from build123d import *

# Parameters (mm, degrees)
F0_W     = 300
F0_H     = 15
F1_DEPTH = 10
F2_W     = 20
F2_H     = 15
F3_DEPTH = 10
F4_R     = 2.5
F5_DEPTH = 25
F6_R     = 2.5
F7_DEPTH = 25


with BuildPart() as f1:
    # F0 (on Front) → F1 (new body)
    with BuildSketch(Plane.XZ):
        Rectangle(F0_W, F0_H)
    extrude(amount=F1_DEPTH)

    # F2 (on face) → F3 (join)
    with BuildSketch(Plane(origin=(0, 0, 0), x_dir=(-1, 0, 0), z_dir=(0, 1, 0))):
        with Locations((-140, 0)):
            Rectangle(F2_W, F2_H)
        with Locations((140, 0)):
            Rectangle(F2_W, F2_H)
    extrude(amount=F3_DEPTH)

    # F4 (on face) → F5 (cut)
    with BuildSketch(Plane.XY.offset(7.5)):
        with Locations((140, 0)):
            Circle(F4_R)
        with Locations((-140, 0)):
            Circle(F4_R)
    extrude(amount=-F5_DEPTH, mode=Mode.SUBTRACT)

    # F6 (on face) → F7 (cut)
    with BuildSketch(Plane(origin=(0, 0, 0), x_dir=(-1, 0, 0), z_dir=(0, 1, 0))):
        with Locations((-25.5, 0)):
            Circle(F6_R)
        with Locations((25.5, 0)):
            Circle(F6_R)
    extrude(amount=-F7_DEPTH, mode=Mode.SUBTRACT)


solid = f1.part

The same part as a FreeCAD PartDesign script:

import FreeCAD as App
import Part
import Sketcher
from FreeCAD import Vector


def add_polygon(sketch, points):
    """Adds a closed chain of lines whose ends are joined by coincident constraints."""
    first, n = sketch.GeometryCount, len(points)
    for a, b in zip(points, points[1:] + points[:1]):
        sketch.addGeometry(Part.LineSegment(App.Vector(*a, 0), App.Vector(*b, 0)), False)
    for i in range(n):
        sketch.addConstraint(Sketcher.Constraint("Coincident", first + i, 2, first + (i + 1) % n, 1))

doc = App.newDocument("Part")
body = doc.addObject("PartDesign::Body", "Body")

# Sketch on XZ plane
sketch1 = body.newObject("Sketcher::SketchObject", "Sketch")
sketch1.AttachmentSupport = (doc.getObject("XZ_Plane"), [""])
sketch1.MapMode = "FlatFace"
add_polygon(sketch1, [(-150, 7.5), (-150, -7.5), (150, -7.5), (150, 7.5)])  # lines 0-3
sketch1.addConstraint([
    Sketcher.Constraint("Vertical", 0),
    Sketcher.Constraint("Horizontal", 1),
    Sketcher.Constraint("Vertical", 2),
    Sketcher.Constraint("Horizontal", 3),
    Sketcher.Constraint("Symmetric", 0, 2, 2, 2, -1, 1),
    Sketcher.Constraint("DistanceX", 1, 1, 1, 2, 300.0),
    Sketcher.Constraint("DistanceY", 0, 2, 0, 1, 15.0),
])
pad1 = body.newObject("PartDesign::Pad", "Pad")
pad1.Profile = sketch1
pad1.Length = 10

# Sketch on XZ plane
sketch2 = body.newObject("Sketcher::SketchObject", "Sketch001")
sketch2.AttachmentSupport = (doc.getObject("XZ_Plane"), [""])
sketch2.MapMode = "FlatFace"
add_polygon(sketch2, [(150, 7.5), (150, -7.5), (130, -7.5), (130, 7.5)])  # lines 0-3
add_polygon(sketch2, [(-130, 7.5), (-130, -7.5), (-150, -7.5), (-150, 7.5)])  # lines 4-7
sketch2.addConstraint([
    Sketcher.Constraint("Vertical", 0),
    Sketcher.Constraint("Horizontal", 1),
    Sketcher.Constraint("Vertical", 2),
    Sketcher.Constraint("Horizontal", 3),
    Sketcher.Constraint("Vertical", 4),
    Sketcher.Constraint("Horizontal", 5),
    Sketcher.Constraint("Vertical", 6),
    Sketcher.Constraint("Horizontal", 7),
    Sketcher.Constraint("Symmetric", 2, 2, 4, 2, -1, 1),
    Sketcher.Constraint("Symmetric", 0, 2, 6, 2, -1, 1),
    Sketcher.Constraint("Horizontal", 1, 2, 4, 2),
    Sketcher.Constraint("DistanceX", 1, 2, 1, 1, 20.0),
    Sketcher.Constraint("DistanceY", 0, 2, 0, 1, 15.0),
    Sketcher.Constraint("DistanceX", -1, 1, 0, 2, 150.0),
])
pad2 = body.newObject("PartDesign::Pad", "Pad001")
pad2.Profile = sketch2
pad2.Length = 10
pad2.Reversed = True

# Sketch on XY plane
sketch3 = body.newObject("Sketcher::SketchObject", "Sketch002")
sketch3.AttachmentSupport = (doc.getObject("XY_Plane"), [""])
sketch3.MapMode = "FlatFace"
sketch3.AttachmentOffset = App.Placement(Vector(0, 0, 7.5), App.Rotation())
sketch3.addGeometry([
    Part.Circle(Vector(140, 0, 0), Vector(0, 0, 1), 2.5),
    Part.Circle(Vector(-140, 0, 0), Vector(0, 0, 1), 2.5),
], False)
sketch3.addConstraint([
    Sketcher.Constraint("Equal", 0, 1),
    Sketcher.Constraint("Symmetric", 0, 3, 1, 3, -1, 1),
    Sketcher.Constraint("PointOnObject", 0, 3, -1),
    Sketcher.Constraint("Diameter", 0, 5.0),
    Sketcher.Constraint("DistanceX", -1, 1, 0, 3, 140.0),
])
pocket1 = body.newObject("PartDesign::Pocket", "Pocket")
pocket1.Profile = sketch3
pocket1.Length = 25

# Sketch on XZ plane
sketch4 = body.newObject("Sketcher::SketchObject", "Sketch003")
sketch4.AttachmentSupport = (doc.getObject("XZ_Plane"), [""])
sketch4.MapMode = "FlatFace"
sketch4.addGeometry([
    Part.Circle(Vector(25.5, 0, 0), Vector(0, 0, 1), 2.5),
    Part.Circle(Vector(-25.5, 0, 0), Vector(0, 0, 1), 2.5),
], False)
sketch4.addConstraint([
    Sketcher.Constraint("Equal", 0, 1),
    Sketcher.Constraint("Symmetric", 0, 3, 1, 3, -1, 1),
    Sketcher.Constraint("PointOnObject", 0, 3, -1),
    Sketcher.Constraint("Diameter", 0, 5.0),
    Sketcher.Constraint("DistanceX", 1, 3, 0, 3, 51.0),
])
pocket2 = body.newObject("PartDesign::Pocket", "Pocket001")
pocket2.Profile = sketch4
pocket2.Length = 25
pocket2.Reversed = True

doc.recompute()
